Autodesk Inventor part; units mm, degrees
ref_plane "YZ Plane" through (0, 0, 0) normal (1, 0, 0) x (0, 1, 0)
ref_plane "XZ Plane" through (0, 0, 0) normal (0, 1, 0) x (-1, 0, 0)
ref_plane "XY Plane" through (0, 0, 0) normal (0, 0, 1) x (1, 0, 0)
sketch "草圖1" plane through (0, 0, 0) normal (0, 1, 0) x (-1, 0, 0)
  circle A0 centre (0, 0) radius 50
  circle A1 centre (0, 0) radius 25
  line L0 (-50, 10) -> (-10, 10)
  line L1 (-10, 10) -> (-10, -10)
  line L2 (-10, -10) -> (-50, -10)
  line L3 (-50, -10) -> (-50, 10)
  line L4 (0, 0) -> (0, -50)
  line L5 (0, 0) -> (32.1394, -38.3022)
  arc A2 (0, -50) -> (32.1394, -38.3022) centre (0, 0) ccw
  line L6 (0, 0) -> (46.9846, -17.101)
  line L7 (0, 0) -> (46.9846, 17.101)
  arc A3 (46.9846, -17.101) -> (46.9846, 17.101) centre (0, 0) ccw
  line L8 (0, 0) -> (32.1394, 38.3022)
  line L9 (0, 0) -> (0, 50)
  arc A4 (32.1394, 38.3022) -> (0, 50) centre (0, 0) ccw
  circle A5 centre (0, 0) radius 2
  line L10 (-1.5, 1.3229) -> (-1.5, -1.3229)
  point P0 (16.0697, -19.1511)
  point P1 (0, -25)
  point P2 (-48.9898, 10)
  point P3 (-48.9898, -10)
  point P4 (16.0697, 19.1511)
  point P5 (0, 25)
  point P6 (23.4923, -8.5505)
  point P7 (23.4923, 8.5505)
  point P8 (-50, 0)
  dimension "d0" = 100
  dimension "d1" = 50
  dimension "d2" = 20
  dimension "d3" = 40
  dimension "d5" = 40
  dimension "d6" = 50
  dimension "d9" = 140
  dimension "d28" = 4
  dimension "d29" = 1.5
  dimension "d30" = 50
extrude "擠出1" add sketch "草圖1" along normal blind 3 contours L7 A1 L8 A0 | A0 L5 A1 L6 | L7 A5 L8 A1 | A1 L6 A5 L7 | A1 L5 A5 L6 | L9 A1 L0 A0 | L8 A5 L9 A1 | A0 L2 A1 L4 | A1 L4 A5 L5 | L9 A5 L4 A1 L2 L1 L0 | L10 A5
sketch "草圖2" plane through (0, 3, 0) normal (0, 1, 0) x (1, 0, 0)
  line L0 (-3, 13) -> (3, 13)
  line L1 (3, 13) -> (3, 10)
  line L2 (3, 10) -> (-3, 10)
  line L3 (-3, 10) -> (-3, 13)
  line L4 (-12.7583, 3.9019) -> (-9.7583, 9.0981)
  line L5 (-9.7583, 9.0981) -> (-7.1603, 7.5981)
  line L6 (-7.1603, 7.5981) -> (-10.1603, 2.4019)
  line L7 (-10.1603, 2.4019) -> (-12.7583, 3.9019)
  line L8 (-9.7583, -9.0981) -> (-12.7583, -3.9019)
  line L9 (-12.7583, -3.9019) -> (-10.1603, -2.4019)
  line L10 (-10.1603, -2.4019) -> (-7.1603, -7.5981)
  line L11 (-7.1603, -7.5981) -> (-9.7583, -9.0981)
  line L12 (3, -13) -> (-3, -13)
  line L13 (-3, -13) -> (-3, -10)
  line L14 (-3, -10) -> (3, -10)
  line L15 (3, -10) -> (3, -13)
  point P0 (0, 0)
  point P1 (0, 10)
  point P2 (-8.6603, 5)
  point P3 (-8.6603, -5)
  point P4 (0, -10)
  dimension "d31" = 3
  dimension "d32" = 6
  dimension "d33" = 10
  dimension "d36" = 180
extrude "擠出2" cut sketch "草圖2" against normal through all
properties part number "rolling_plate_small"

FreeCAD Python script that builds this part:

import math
import FreeCAD as App
import Part
import Sketcher

V = App.Vector
Q = App.Units.Quantity

doc = App.newDocument("Part")
body = doc.addObject("PartDesign::Body", "Body")

# Sketch on XZ plane
sketch1 = body.newObject("Sketcher::SketchObject", "Sketch")
sketch1.AttachmentSupport = (doc.getObject("XZ_Plane"), [""])
sketch1.MapMode = "FlatFace"
sketch1.addGeometry([
    Part.LineSegment(V(-23.5, 8.6, 0), V(-47, 17.1, 0)),  # 0
    Part.ArcOfCircle(Part.Circle(V(0, 0, 0), V(0, 0, 1), 50), math.radians(130), math.radians(160)),  # 1
    Part.LineSegment(V(-32.1, 38.3, 0), V(-16.1, 19.2, 0)),  # 2
    Part.ArcOfCircle(Part.Circle(V(0, 0, 0), V(0, 0, 1), 25), math.radians(90), math.radians(130)),  # 3
    Part.LineSegment(V(0, 25, 0), V(0, 50, 0)),  # 4
    Part.ArcOfCircle(Part.Circle(V(0, 0, 0), V(0, 0, 1), 50), math.radians(12), math.radians(90)),  # 5
    Part.LineSegment(V(49, 10, 0), V(10, 10, 0)),  # 6
    Part.LineSegment(V(10, 10, 0), V(10, -10, 0)),  # 7
    Part.LineSegment(V(10, -10, 0), V(49, -10, 0)),  # 8
    Part.ArcOfCircle(Part.Circle(V(0, 0, 0), V(0, 0, 1), 50), math.radians(-90), math.radians(-12)),  # 9
    Part.LineSegment(V(0, -50, 0), V(0, -25, 0)),  # 10
    Part.ArcOfCircle(Part.Circle(V(0, 0, 0), V(0, 0, 1), 25), math.radians(-130), math.radians(-90)),  # 11
    Part.LineSegment(V(-16.1, -19.2, 0), V(-32.1, -38.3, 0)),  # 12
    Part.ArcOfCircle(Part.Circle(V(0, 0, 0), V(0, 0, 1), 50), math.radians(-160), math.radians(-130)),  # 13
    Part.LineSegment(V(-47, -17.1, 0), V(-23.5, -8.6, 0)),  # 14
    Part.ArcOfCircle(Part.Circle(V(0, 0, 0), V(0, 0, 1), 25), math.radians(160), math.radians(200)),  # 15
    Part.LineSegment(V(1.5, -1.3, 0), V(1.5, 1.3, 0)),  # 16
    Part.ArcOfCircle(Part.Circle(V(0, 0, 0), V(0, 0, 1), 2), math.radians(41), math.radians(319)),  # 17
], False)
sketch1.addConstraint([
    Sketcher.Constraint("Coincident", 0, 2, 1, 2),
    Sketcher.Constraint("Coincident", 1, 1, 2, 1),
    Sketcher.Constraint("Coincident", 2, 2, 3, 2),
    Sketcher.Constraint("Coincident", 3, 1, 4, 1),
    Sketcher.Constraint("Coincident", 4, 2, 5, 2),
    Sketcher.Constraint("Coincident", 5, 1, 6, 1),
    Sketcher.Constraint("Coincident", 6, 2, 7, 1),
    Sketcher.Constraint("Coincident", 7, 2, 8, 1),
    Sketcher.Constraint("Coincident", 8, 2, 9, 2),
    Sketcher.Constraint("Coincident", 9, 1, 10, 1),
    Sketcher.Constraint("Coincident", 10, 2, 11, 2),
    Sketcher.Constraint("Coincident", 11, 1, 12, 1),
    Sketcher.Constraint("Coincident", 12, 2, 13, 2),
    Sketcher.Constraint("Coincident", 13, 1, 14, 1),
    Sketcher.Constraint("Coincident", 14, 2, 15, 2),
    Sketcher.Constraint("Coincident", 15, 1, 0, 1),
    Sketcher.Constraint("Coincident", 16, 1, 17, 2),
    Sketcher.Constraint("Coincident", 17, 1, 16, 2),
    Sketcher.Constraint("Vertical", 4),
    Sketcher.Constraint("Horizontal", 6),
    Sketcher.Constraint("Vertical", 7),
    Sketcher.Constraint("Horizontal", 8),
    Sketcher.Constraint("Vertical", 10),
    Sketcher.Constraint("Vertical", 16),
    Sketcher.Constraint("Coincident", 1, 3, -1, 1),
    Sketcher.Constraint("Coincident", 3, 3, -1, 1),
    Sketcher.Constraint("Coincident", 5, 3, -1, 1),
    Sketcher.Constraint("Coincident", 9, 3, -1, 1),
    Sketcher.Constraint("Coincident", 11, 3, -1, 1),
    Sketcher.Constraint("Coincident", 13, 3, -1, 1),
    Sketcher.Constraint("Coincident", 15, 3, -1, 1),
    Sketcher.Constraint("Coincident", 17, 3, -1, 1),
    Sketcher.Constraint("Equal", 1, 5),
    Sketcher.Constraint("Equal", 5, 9),
    Sketcher.Constraint("Equal", 3, 11),
    Sketcher.Constraint("Equal", 9, 13),
    Sketcher.Constraint("Equal", 11, 15),
    Sketcher.Constraint("PointOnObject", 3, 1, -2),
    Sketcher.Constraint("PointOnObject", 9, 1, -2),
    Sketcher.Constraint("Vertical", 5, 1, 8, 2),
    Sketcher.Constraint("Vertical", 2, 2, 11, 1),
    Sketcher.Constraint("Vertical", 1, 1, 12, 2),
    Sketcher.Constraint("Vertical", 0, 2, 13, 1),
    Sketcher.Constraint("Vertical", 14, 2, 15, 1),
    Sketcher.Constraint("Radius", 1, 50.0),
    Sketcher.Constraint("Radius", 3, 25.0),
    Sketcher.Constraint("Radius", 17, 2.0),
    Sketcher.Constraint("DistanceY", 7, 2, 7, 1, 20.0),
    Sketcher.Constraint("Angle", 2, Q("-50 deg")),
    Sketcher.Constraint("Angle", 14, Q("20 deg")),
    Sketcher.Constraint("DistanceX", -1, 1, 16, 1, 1.5),
    Sketcher.Constraint("DistanceX", -1, 1, 6, 2, 10.0),
    Sketcher.Constraint("DistanceY", 11, 1, 13, 1, 2.05),
    Sketcher.Constraint("DistanceY", -1, 1, 0, 2, 17.101),
])
pad1 = body.newObject("PartDesign::Pad", "Pad")
pad1.Profile = sketch1
pad1.Length = 3
pad1.Reversed = True

# Sketch on XZ plane
sketch2 = body.newObject("Sketcher::SketchObject", "Sketch001")
sketch2.AttachmentSupport = (doc.getObject("XZ_Plane"), [""])
sketch2.MapMode = "FlatFace"
sketch2.AttachmentOffset = App.Placement(V(0, 0, -3), App.Rotation())
sketch2.addGeometry([
    Part.LineSegment(V(3, -13, 0), V(-3, -13, 0)),  # 0
    Part.LineSegment(V(-3, -13, 0), V(-3, -10, 0)),  # 1
    Part.LineSegment(V(-3, -10, 0), V(3, -10, 0)),  # 2
    Part.LineSegment(V(3, -10, 0), V(3, -13, 0)),  # 3
    Part.LineSegment(V(-9.8, -9.1, 0), V(-12.8, -3.9, 0)),  # 4
    Part.LineSegment(V(-12.8, -3.9, 0), V(-10.2, -2.4, 0)),  # 5
    Part.LineSegment(V(-10.2, -2.4, 0), V(-7.2, -7.6, 0)),  # 6
    Part.LineSegment(V(-7.2, -7.6, 0), V(-9.8, -9.1, 0)),  # 7
    Part.LineSegment(V(-12.8, 3.9, 0), V(-9.8, 9.1, 0)),  # 8
    Part.LineSegment(V(-9.8, 9.1, 0), V(-7.2, 7.6, 0)),  # 9
    Part.LineSegment(V(-7.2, 7.6, 0), V(-10.2, 2.4, 0)),  # 10
    Part.LineSegment(V(-10.2, 2.4, 0), V(-12.8, 3.9, 0)),  # 11
    Part.LineSegment(V(-3, 13, 0), V(3, 13, 0)),  # 12
    Part.LineSegment(V(3, 13, 0), V(3, 10, 0)),  # 13
    Part.LineSegment(V(3, 10, 0), V(-3, 10, 0)),  # 14
    Part.LineSegment(V(-3, 10, 0), V(-3, 13, 0)),  # 15
], False)
sketch2.addConstraint([
    Sketcher.Constraint("Coincident", 0, 2, 1, 1),
    Sketcher.Constraint("Coincident", 1, 2, 2, 1),
    Sketcher.Constraint("Coincident", 2, 2, 3, 1),
    Sketcher.Constraint("Coincident", 3, 2, 0, 1),
    Sketcher.Constraint("Coincident", 4, 2, 5, 1),
    Sketcher.Constraint("Coincident", 5, 2, 6, 1),
    Sketcher.Constraint("Coincident", 6, 2, 7, 1),
    Sketcher.Constraint("Coincident", 7, 2, 4, 1),
    Sketcher.Constraint("Coincident", 8, 2, 9, 1),
    Sketcher.Constraint("Coincident", 9, 2, 10, 1),
    Sketcher.Constraint("Coincident", 10, 2, 11, 1),
    Sketcher.Constraint("Coincident", 11, 2, 8, 1),
    Sketcher.Constraint("Coincident", 12, 2, 13, 1),
    Sketcher.Constraint("Coincident", 13, 2, 14, 1),
    Sketcher.Constraint("Coincident", 14, 2, 15, 1),
    Sketcher.Constraint("Coincident", 15, 2, 12, 1),
    Sketcher.Constraint("Horizontal", 0),
    Sketcher.Constraint("Vertical", 1),
    Sketcher.Constraint("Horizontal", 2),
    Sketcher.Constraint("Vertical", 3),
    Sketcher.Constraint("Horizontal", 12),
    Sketcher.Constraint("Vertical", 13),
    Sketcher.Constraint("Horizontal", 14),
    Sketcher.Constraint("Vertical", 15),
    Sketcher.Constraint("Symmetric", 0, 2, 12, 2, -1, 1),
    Sketcher.Constraint("Symmetric", 2, 2, 14, 2, -1, 1),
    Sketcher.Constraint("Symmetric", 7, 2, 8, 2, -1),
    Sketcher.Constraint("Symmetric", 6, 2, 9, 2, -1),
    Sketcher.Constraint("Symmetric", 5, 2, 10, 2, -1),
    Sketcher.Constraint("Symmetric", 4, 2, 11, 2, -1),
    Sketcher.Constraint("Perpendicular", 4, 5),
    Sketcher.Constraint("Perpendicular", 5, 6),
    Sketcher.Constraint("Perpendicular", 6, 7),
    Sketcher.Constraint("Vertical", 3, 2, 12, 2),
    Sketcher.Constraint("DistanceX", 0, 2, 0, 1, 6.0),
    Sketcher.Constraint("DistanceY", 1, 1, 1, 2, 3.0),
    Sketcher.Constraint("Distance", 4, 6.0),
    Sketcher.Constraint("Distance", 5, 3.0),
    Sketcher.Constraint("DistanceY", 1, 2, -1, 1, 10.0),
    Sketcher.Constraint("DistanceX", 5, 2, 6, 2, 3.0),
    Sketcher.Constraint("DistanceY", 5, 2, 9, 2, 10.0),
    Sketcher.Constraint("DistanceX", 4, 2, -1, 1, 12.7583),
])
pocket1 = body.newObject("PartDesign::Pocket", "Pocket")
pocket1.Profile = sketch2
pocket1.Type = "ThroughAll"
pocket1.Reversed = True

doc.recompute()
